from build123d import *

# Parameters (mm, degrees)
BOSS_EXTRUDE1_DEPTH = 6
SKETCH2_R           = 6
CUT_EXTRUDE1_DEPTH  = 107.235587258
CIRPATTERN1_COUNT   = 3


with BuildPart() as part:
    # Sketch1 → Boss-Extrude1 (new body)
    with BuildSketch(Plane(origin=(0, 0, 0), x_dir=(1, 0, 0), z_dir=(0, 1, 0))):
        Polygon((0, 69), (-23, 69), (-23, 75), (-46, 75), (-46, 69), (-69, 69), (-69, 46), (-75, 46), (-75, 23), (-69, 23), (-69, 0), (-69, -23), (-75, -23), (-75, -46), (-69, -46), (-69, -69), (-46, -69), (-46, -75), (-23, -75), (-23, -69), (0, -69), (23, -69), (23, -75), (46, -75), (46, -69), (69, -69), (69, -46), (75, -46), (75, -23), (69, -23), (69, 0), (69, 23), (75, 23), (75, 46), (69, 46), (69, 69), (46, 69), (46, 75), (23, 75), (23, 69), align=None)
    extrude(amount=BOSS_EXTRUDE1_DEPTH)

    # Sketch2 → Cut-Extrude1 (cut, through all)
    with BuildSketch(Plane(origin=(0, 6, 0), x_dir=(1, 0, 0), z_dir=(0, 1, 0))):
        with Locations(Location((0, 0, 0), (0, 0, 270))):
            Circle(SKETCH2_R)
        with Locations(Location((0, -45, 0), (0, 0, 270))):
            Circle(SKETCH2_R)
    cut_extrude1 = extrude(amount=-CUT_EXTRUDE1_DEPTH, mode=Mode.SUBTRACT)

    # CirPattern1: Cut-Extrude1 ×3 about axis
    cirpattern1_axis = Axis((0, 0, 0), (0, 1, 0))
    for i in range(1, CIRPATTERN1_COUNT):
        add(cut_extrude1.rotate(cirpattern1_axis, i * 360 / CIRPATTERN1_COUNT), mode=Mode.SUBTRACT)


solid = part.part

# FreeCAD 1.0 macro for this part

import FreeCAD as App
import Part
import Sketcher
from FreeCAD import Vector
Q = App.Units.Quantity

doc = App.newDocument("Part")
body = doc.addObject("PartDesign::Body", "Body")

sketch1 = body.newObject("Sketcher::SketchObject", "Sketch")
sketch1.AttachmentSupport = (doc.getObject("XZ_Plane"), [""])
sketch1.MapMode = "FlatFace"
sketch1.addGeometry([
    Part.LineSegment(Vector(-23, -69, 0), Vector(-23, -75, 0)),
    Part.LineSegment(Vector(-23, -75, 0), Vector(-46, -75, 0)),
    Part.LineSegment(Vector(-46, -75, 0), Vector(-46, -69, 0)),
    Part.LineSegment(Vector(-46, -69, 0), Vector(-69, -69, 0)),
    Part.LineSegment(Vector(-69, -69, 0), Vector(-69, -46, 0)),
    Part.LineSegment(Vector(-69, -46, 0), Vector(-75, -46, 0)),
    Part.LineSegment(Vector(-75, -46, 0), Vector(-75, -23, 0)),
    Part.LineSegment(Vector(-75, -23, 0), Vector(-69, -23, 0)),
    Part.LineSegment(Vector(-69, -23, 0), Vector(-69, 23, 0)),
    Part.LineSegment(Vector(-69, 23, 0), Vector(-75, 23, 0)),
    Part.LineSegment(Vector(-75, 23, 0), Vector(-75, 46, 0)),
    Part.LineSegment(Vector(-75, 46, 0), Vector(-69, 46, 0)),
    Part.LineSegment(Vector(-69, 46, 0), Vector(-69, 69, 0)),
    Part.LineSegment(Vector(-69, 69, 0), Vector(-46, 69, 0)),
    Part.LineSegment(Vector(-46, 69, 0), Vector(-46, 75, 0)),
    Part.LineSegment(Vector(-46, 75, 0), Vector(-23, 75, 0)),
    Part.LineSegment(Vector(-23, 75, 0), Vector(-23, 69, 0)),
    Part.LineSegment(Vector(-23, 69, 0), Vector(23, 69, 0)),
    Part.LineSegment(Vector(23, 69, 0), Vector(23, 75, 0)),
    Part.LineSegment(Vector(23, 75, 0), Vector(46, 75, 0)),
    Part.LineSegment(Vector(46, 75, 0), Vector(46, 69, 0)),
    Part.LineSegment(Vector(46, 69, 0), Vector(69, 69, 0)),
    Part.LineSegment(Vector(69, 69, 0), Vector(69, 46, 0)),
    Part.LineSegment(Vector(69, 46, 0), Vector(75, 46, 0)),
    Part.LineSegment(Vector(75, 46, 0), Vector(75, 23, 0)),
    Part.LineSegment(Vector(75, 23, 0), Vector(69, 23, 0)),
    Part.LineSegment(Vector(69, 23, 0), Vector(69, -23, 0)),
    Part.LineSegment(Vector(69, -23, 0), Vector(75, -23, 0)),
    Part.LineSegment(Vector(75, -23, 0), Vector(75, -46, 0)),
    Part.LineSegment(Vector(75, -46, 0), Vector(69, -46, 0)),
    Part.LineSegment(Vector(69, -46, 0), Vector(69, -69, 0)),
    Part.LineSegment(Vector(69, -69, 0), Vector(46, -69, 0)),
    Part.LineSegment(Vector(46, -69, 0), Vector(46, -75, 0)),
    Part.LineSegment(Vector(46, -75, 0), Vector(23, -75, 0)),
    Part.LineSegment(Vector(23, -75, 0), Vector(23, -69, 0)),
    Part.LineSegment(Vector(23, -69, 0), Vector(-23, -69, 0)),
], False)
sketch1.addConstraint([
    Sketcher.Constraint("Coincident", 0, 2, 1, 1),
    Sketcher.Constraint("Coincident", 1, 2, 2, 1),
    Sketcher.Constraint("Coincident", 2, 2, 3, 1),
    Sketcher.Constraint("Coincident", 3, 2, 4, 1),
    Sketcher.Constraint("Coincident", 4, 2, 5, 1),
    Sketcher.Constraint("Coincident", 5, 2, 6, 1),
    Sketcher.Constraint("Coincident", 6, 2, 7, 1),
    Sketcher.Constraint("Coincident", 7, 2, 8, 1),
    Sketcher.Constraint("Coincident", 8, 2, 9, 1),
    Sketcher.Constraint("Coincident", 9, 2, 10, 1),
    Sketcher.Constraint("Coincident", 10, 2, 11, 1),
    Sketcher.Constraint("Coincident", 11, 2, 12, 1),
    Sketcher.Constraint("Coincident", 12, 2, 13, 1),
    Sketcher.Constraint("Coincident", 13, 2, 14, 1),
    Sketcher.Constraint("Coincident", 14, 2, 15, 1),
    Sketcher.Constraint("Coincident", 15, 2, 16, 1),
    Sketcher.Constraint("Coincident", 16, 2, 17, 1),
    Sketcher.Constraint("Coincident", 17, 2, 18, 1),
    Sketcher.Constraint("Coincident", 18, 2, 19, 1),
    Sketcher.Constraint("Coincident", 19, 2, 20, 1),
    Sketcher.Constraint("Coincident", 20, 2, 21, 1),
    Sketcher.Constraint("Coincident", 21, 2, 22, 1),
    Sketcher.Constraint("Coincident", 22, 2, 23, 1),
    Sketcher.Constraint("Coincident", 23, 2, 24, 1),
    Sketcher.Constraint("Coincident", 24, 2, 25, 1),
    Sketcher.Constraint("Coincident", 25, 2, 26, 1),
    Sketcher.Constraint("Coincident", 26, 2, 27, 1),
    Sketcher.Constraint("Coincident", 27, 2, 28, 1),
    Sketcher.Constraint("Coincident", 28, 2, 29, 1),
    Sketcher.Constraint("Coincident", 29, 2, 30, 1),
    Sketcher.Constraint("Coincident", 30, 2, 31, 1),
    Sketcher.Constraint("Coincident", 31, 2, 32, 1),
    Sketcher.Constraint("Coincident", 32, 2, 33, 1),
    Sketcher.Constraint("Coincident", 33, 2, 34, 1),
    Sketcher.Constraint("Coincident", 34, 2, 35, 1),
    Sketcher.Constraint("Coincident", 35, 2, 0, 1),
    Sketcher.Constraint("Vertical", 0),
    Sketcher.Constraint("Horizontal", 1),
    Sketcher.Constraint("Vertical", 2),
    Sketcher.Constraint("Horizontal", 3),
    Sketcher.Constraint("Vertical", 4),
    Sketcher.Constraint("Horizontal", 5),
    Sketcher.Constraint("Vertical", 6),
    Sketcher.Constraint("Horizontal", 7),
    Sketcher.Constraint("Vertical", 8),
    Sketcher.Constraint("Horizontal", 9),
    Sketcher.Constraint("Vertical", 10),
    Sketcher.Constraint("Horizontal", 11),
    Sketcher.Constraint("Vertical", 12),
    Sketcher.Constraint("Horizontal", 13),
    Sketcher.Constraint("Vertical", 14),
    Sketcher.Constraint("Horizontal", 15),
    Sketcher.Constraint("Vertical", 16),
    Sketcher.Constraint("Horizontal", 17),
    Sketcher.Constraint("Vertical", 18),
    Sketcher.Constraint("Horizontal", 19),
    Sketcher.Constraint("Vertical", 20),
    Sketcher.Constraint("Horizontal", 21),
    Sketcher.Constraint("Vertical", 22),
    Sketcher.Constraint("Horizontal", 23),
    Sketcher.Constraint("Vertical", 24),
    Sketcher.Constraint("Horizontal", 25),
    Sketcher.Constraint("Vertical", 26),
    Sketcher.Constraint("Horizontal", 27),
    Sketcher.Constraint("Vertical", 28),
    Sketcher.Constraint("Horizontal", 29),
    Sketcher.Constraint("Vertical", 30),
    Sketcher.Constraint("Horizontal", 31),
    Sketcher.Constraint("Vertical", 32),
    Sketcher.Constraint("Horizontal", 33),
    Sketcher.Constraint("Vertical", 34),
    Sketcher.Constraint("Horizontal", 35),
    Sketcher.Constraint("Symmetric", 0, 2, 18, 2, -1, 1),
    Sketcher.Constraint("Symmetric", 2, 2, 20, 2, -1, 1),
    Sketcher.Constraint("Symmetric", 4, 2, 22, 2, -1, 1),
    Sketcher.Constraint("Symmetric", 6, 2, 24, 2, -1, 1),
    Sketcher.Constraint("Symmetric", 8, 2, 26, 2, -1, 1),
    Sketcher.Constraint("Symmetric", 10, 2, 28, 2, -1, 1),
    Sketcher.Constraint("Symmetric", 12, 2, 30, 2, -1, 1),
    Sketcher.Constraint("Symmetric", 14, 2, 32, 2, -1, 1),
    Sketcher.Constraint("Symmetric", 16, 2, 34, 2, -1, 1),
    Sketcher.Constraint("Symmetric", 15, 2, 18, 2, -2),
    Sketcher.Constraint("Symmetric", 13, 2, 20, 2, -2),
    Sketcher.Constraint("Symmetric", 11, 2, 22, 2, -2),
    Sketcher.Constraint("Symmetric", 9, 2, 24, 2, -2),
    Sketcher.Constraint("Horizontal", 13, 2, 16, 2),
    Sketcher.Constraint("Vertical", 4, 2, 7, 2),
    Sketcher.Constraint("Equal", 1, 3),
    Sketcher.Constraint("Equal", 29, 0),
    Sketcher.Constraint("Equal", 33, 4),
    Sketcher.Constraint("Equal", 4, 6),
    Sketcher.Constraint("Equal", 35, 8),
    Sketcher.Constraint("DistanceX", 1, 2, 1, 1, Q("23 mm")),
    Sketcher.Constraint("DistanceX", 5, 2, 5, 1, Q("6 mm")),
    Sketcher.Constraint("DistanceX", 17, 1, 17, 2, Q("46 mm")),
])
pad1 = body.newObject("PartDesign::Pad", "Pad")
pad1.Profile = sketch1
pad1.Length = 6
pad1.Reversed = True

sketch2 = body.newObject("Sketcher::SketchObject", "Sketch001")
sketch2.AttachmentSupport = (doc.getObject("XZ_Plane"), [""])
sketch2.MapMode = "FlatFace"
sketch2.AttachmentOffset = App.Placement(Vector(0, 0, -6), App.Rotation())
sketch2.addGeometry([
    Part.Circle(Vector(0, 0, 0), Vector(0, 0, 1), 6),
    Part.Circle(Vector(0, 45, 0), Vector(0, 0, 1), 6),
], False)
sketch2.addConstraint([
    Sketcher.Constraint("Coincident", 0, 3, -1, 1),
    Sketcher.Constraint("Equal", 0, 1),
    Sketcher.Constraint("PointOnObject", 1, 3, -2),
    Sketcher.Constraint("Diameter", 0, Q("12 mm")),
    Sketcher.Constraint("DistanceY", -1, 1, 1, 3, Q("45 mm")),
])
pocket1 = body.newObject("PartDesign::Pocket", "Pocket")
pocket1.Profile = sketch2
pocket1.Type = "ThroughAll"
pocket1.Reversed = True
doc.recompute()

polarpattern = body.newObject("PartDesign::PolarPattern", "PolarPattern")
polarpattern.Originals = [pocket1]
polarpattern.Axis = (doc.getObject("Y_Axis"), [""])
polarpattern.Angle = 360
polarpattern.Occurrences = 3
body.Tip = polarpattern

doc.recompute()
